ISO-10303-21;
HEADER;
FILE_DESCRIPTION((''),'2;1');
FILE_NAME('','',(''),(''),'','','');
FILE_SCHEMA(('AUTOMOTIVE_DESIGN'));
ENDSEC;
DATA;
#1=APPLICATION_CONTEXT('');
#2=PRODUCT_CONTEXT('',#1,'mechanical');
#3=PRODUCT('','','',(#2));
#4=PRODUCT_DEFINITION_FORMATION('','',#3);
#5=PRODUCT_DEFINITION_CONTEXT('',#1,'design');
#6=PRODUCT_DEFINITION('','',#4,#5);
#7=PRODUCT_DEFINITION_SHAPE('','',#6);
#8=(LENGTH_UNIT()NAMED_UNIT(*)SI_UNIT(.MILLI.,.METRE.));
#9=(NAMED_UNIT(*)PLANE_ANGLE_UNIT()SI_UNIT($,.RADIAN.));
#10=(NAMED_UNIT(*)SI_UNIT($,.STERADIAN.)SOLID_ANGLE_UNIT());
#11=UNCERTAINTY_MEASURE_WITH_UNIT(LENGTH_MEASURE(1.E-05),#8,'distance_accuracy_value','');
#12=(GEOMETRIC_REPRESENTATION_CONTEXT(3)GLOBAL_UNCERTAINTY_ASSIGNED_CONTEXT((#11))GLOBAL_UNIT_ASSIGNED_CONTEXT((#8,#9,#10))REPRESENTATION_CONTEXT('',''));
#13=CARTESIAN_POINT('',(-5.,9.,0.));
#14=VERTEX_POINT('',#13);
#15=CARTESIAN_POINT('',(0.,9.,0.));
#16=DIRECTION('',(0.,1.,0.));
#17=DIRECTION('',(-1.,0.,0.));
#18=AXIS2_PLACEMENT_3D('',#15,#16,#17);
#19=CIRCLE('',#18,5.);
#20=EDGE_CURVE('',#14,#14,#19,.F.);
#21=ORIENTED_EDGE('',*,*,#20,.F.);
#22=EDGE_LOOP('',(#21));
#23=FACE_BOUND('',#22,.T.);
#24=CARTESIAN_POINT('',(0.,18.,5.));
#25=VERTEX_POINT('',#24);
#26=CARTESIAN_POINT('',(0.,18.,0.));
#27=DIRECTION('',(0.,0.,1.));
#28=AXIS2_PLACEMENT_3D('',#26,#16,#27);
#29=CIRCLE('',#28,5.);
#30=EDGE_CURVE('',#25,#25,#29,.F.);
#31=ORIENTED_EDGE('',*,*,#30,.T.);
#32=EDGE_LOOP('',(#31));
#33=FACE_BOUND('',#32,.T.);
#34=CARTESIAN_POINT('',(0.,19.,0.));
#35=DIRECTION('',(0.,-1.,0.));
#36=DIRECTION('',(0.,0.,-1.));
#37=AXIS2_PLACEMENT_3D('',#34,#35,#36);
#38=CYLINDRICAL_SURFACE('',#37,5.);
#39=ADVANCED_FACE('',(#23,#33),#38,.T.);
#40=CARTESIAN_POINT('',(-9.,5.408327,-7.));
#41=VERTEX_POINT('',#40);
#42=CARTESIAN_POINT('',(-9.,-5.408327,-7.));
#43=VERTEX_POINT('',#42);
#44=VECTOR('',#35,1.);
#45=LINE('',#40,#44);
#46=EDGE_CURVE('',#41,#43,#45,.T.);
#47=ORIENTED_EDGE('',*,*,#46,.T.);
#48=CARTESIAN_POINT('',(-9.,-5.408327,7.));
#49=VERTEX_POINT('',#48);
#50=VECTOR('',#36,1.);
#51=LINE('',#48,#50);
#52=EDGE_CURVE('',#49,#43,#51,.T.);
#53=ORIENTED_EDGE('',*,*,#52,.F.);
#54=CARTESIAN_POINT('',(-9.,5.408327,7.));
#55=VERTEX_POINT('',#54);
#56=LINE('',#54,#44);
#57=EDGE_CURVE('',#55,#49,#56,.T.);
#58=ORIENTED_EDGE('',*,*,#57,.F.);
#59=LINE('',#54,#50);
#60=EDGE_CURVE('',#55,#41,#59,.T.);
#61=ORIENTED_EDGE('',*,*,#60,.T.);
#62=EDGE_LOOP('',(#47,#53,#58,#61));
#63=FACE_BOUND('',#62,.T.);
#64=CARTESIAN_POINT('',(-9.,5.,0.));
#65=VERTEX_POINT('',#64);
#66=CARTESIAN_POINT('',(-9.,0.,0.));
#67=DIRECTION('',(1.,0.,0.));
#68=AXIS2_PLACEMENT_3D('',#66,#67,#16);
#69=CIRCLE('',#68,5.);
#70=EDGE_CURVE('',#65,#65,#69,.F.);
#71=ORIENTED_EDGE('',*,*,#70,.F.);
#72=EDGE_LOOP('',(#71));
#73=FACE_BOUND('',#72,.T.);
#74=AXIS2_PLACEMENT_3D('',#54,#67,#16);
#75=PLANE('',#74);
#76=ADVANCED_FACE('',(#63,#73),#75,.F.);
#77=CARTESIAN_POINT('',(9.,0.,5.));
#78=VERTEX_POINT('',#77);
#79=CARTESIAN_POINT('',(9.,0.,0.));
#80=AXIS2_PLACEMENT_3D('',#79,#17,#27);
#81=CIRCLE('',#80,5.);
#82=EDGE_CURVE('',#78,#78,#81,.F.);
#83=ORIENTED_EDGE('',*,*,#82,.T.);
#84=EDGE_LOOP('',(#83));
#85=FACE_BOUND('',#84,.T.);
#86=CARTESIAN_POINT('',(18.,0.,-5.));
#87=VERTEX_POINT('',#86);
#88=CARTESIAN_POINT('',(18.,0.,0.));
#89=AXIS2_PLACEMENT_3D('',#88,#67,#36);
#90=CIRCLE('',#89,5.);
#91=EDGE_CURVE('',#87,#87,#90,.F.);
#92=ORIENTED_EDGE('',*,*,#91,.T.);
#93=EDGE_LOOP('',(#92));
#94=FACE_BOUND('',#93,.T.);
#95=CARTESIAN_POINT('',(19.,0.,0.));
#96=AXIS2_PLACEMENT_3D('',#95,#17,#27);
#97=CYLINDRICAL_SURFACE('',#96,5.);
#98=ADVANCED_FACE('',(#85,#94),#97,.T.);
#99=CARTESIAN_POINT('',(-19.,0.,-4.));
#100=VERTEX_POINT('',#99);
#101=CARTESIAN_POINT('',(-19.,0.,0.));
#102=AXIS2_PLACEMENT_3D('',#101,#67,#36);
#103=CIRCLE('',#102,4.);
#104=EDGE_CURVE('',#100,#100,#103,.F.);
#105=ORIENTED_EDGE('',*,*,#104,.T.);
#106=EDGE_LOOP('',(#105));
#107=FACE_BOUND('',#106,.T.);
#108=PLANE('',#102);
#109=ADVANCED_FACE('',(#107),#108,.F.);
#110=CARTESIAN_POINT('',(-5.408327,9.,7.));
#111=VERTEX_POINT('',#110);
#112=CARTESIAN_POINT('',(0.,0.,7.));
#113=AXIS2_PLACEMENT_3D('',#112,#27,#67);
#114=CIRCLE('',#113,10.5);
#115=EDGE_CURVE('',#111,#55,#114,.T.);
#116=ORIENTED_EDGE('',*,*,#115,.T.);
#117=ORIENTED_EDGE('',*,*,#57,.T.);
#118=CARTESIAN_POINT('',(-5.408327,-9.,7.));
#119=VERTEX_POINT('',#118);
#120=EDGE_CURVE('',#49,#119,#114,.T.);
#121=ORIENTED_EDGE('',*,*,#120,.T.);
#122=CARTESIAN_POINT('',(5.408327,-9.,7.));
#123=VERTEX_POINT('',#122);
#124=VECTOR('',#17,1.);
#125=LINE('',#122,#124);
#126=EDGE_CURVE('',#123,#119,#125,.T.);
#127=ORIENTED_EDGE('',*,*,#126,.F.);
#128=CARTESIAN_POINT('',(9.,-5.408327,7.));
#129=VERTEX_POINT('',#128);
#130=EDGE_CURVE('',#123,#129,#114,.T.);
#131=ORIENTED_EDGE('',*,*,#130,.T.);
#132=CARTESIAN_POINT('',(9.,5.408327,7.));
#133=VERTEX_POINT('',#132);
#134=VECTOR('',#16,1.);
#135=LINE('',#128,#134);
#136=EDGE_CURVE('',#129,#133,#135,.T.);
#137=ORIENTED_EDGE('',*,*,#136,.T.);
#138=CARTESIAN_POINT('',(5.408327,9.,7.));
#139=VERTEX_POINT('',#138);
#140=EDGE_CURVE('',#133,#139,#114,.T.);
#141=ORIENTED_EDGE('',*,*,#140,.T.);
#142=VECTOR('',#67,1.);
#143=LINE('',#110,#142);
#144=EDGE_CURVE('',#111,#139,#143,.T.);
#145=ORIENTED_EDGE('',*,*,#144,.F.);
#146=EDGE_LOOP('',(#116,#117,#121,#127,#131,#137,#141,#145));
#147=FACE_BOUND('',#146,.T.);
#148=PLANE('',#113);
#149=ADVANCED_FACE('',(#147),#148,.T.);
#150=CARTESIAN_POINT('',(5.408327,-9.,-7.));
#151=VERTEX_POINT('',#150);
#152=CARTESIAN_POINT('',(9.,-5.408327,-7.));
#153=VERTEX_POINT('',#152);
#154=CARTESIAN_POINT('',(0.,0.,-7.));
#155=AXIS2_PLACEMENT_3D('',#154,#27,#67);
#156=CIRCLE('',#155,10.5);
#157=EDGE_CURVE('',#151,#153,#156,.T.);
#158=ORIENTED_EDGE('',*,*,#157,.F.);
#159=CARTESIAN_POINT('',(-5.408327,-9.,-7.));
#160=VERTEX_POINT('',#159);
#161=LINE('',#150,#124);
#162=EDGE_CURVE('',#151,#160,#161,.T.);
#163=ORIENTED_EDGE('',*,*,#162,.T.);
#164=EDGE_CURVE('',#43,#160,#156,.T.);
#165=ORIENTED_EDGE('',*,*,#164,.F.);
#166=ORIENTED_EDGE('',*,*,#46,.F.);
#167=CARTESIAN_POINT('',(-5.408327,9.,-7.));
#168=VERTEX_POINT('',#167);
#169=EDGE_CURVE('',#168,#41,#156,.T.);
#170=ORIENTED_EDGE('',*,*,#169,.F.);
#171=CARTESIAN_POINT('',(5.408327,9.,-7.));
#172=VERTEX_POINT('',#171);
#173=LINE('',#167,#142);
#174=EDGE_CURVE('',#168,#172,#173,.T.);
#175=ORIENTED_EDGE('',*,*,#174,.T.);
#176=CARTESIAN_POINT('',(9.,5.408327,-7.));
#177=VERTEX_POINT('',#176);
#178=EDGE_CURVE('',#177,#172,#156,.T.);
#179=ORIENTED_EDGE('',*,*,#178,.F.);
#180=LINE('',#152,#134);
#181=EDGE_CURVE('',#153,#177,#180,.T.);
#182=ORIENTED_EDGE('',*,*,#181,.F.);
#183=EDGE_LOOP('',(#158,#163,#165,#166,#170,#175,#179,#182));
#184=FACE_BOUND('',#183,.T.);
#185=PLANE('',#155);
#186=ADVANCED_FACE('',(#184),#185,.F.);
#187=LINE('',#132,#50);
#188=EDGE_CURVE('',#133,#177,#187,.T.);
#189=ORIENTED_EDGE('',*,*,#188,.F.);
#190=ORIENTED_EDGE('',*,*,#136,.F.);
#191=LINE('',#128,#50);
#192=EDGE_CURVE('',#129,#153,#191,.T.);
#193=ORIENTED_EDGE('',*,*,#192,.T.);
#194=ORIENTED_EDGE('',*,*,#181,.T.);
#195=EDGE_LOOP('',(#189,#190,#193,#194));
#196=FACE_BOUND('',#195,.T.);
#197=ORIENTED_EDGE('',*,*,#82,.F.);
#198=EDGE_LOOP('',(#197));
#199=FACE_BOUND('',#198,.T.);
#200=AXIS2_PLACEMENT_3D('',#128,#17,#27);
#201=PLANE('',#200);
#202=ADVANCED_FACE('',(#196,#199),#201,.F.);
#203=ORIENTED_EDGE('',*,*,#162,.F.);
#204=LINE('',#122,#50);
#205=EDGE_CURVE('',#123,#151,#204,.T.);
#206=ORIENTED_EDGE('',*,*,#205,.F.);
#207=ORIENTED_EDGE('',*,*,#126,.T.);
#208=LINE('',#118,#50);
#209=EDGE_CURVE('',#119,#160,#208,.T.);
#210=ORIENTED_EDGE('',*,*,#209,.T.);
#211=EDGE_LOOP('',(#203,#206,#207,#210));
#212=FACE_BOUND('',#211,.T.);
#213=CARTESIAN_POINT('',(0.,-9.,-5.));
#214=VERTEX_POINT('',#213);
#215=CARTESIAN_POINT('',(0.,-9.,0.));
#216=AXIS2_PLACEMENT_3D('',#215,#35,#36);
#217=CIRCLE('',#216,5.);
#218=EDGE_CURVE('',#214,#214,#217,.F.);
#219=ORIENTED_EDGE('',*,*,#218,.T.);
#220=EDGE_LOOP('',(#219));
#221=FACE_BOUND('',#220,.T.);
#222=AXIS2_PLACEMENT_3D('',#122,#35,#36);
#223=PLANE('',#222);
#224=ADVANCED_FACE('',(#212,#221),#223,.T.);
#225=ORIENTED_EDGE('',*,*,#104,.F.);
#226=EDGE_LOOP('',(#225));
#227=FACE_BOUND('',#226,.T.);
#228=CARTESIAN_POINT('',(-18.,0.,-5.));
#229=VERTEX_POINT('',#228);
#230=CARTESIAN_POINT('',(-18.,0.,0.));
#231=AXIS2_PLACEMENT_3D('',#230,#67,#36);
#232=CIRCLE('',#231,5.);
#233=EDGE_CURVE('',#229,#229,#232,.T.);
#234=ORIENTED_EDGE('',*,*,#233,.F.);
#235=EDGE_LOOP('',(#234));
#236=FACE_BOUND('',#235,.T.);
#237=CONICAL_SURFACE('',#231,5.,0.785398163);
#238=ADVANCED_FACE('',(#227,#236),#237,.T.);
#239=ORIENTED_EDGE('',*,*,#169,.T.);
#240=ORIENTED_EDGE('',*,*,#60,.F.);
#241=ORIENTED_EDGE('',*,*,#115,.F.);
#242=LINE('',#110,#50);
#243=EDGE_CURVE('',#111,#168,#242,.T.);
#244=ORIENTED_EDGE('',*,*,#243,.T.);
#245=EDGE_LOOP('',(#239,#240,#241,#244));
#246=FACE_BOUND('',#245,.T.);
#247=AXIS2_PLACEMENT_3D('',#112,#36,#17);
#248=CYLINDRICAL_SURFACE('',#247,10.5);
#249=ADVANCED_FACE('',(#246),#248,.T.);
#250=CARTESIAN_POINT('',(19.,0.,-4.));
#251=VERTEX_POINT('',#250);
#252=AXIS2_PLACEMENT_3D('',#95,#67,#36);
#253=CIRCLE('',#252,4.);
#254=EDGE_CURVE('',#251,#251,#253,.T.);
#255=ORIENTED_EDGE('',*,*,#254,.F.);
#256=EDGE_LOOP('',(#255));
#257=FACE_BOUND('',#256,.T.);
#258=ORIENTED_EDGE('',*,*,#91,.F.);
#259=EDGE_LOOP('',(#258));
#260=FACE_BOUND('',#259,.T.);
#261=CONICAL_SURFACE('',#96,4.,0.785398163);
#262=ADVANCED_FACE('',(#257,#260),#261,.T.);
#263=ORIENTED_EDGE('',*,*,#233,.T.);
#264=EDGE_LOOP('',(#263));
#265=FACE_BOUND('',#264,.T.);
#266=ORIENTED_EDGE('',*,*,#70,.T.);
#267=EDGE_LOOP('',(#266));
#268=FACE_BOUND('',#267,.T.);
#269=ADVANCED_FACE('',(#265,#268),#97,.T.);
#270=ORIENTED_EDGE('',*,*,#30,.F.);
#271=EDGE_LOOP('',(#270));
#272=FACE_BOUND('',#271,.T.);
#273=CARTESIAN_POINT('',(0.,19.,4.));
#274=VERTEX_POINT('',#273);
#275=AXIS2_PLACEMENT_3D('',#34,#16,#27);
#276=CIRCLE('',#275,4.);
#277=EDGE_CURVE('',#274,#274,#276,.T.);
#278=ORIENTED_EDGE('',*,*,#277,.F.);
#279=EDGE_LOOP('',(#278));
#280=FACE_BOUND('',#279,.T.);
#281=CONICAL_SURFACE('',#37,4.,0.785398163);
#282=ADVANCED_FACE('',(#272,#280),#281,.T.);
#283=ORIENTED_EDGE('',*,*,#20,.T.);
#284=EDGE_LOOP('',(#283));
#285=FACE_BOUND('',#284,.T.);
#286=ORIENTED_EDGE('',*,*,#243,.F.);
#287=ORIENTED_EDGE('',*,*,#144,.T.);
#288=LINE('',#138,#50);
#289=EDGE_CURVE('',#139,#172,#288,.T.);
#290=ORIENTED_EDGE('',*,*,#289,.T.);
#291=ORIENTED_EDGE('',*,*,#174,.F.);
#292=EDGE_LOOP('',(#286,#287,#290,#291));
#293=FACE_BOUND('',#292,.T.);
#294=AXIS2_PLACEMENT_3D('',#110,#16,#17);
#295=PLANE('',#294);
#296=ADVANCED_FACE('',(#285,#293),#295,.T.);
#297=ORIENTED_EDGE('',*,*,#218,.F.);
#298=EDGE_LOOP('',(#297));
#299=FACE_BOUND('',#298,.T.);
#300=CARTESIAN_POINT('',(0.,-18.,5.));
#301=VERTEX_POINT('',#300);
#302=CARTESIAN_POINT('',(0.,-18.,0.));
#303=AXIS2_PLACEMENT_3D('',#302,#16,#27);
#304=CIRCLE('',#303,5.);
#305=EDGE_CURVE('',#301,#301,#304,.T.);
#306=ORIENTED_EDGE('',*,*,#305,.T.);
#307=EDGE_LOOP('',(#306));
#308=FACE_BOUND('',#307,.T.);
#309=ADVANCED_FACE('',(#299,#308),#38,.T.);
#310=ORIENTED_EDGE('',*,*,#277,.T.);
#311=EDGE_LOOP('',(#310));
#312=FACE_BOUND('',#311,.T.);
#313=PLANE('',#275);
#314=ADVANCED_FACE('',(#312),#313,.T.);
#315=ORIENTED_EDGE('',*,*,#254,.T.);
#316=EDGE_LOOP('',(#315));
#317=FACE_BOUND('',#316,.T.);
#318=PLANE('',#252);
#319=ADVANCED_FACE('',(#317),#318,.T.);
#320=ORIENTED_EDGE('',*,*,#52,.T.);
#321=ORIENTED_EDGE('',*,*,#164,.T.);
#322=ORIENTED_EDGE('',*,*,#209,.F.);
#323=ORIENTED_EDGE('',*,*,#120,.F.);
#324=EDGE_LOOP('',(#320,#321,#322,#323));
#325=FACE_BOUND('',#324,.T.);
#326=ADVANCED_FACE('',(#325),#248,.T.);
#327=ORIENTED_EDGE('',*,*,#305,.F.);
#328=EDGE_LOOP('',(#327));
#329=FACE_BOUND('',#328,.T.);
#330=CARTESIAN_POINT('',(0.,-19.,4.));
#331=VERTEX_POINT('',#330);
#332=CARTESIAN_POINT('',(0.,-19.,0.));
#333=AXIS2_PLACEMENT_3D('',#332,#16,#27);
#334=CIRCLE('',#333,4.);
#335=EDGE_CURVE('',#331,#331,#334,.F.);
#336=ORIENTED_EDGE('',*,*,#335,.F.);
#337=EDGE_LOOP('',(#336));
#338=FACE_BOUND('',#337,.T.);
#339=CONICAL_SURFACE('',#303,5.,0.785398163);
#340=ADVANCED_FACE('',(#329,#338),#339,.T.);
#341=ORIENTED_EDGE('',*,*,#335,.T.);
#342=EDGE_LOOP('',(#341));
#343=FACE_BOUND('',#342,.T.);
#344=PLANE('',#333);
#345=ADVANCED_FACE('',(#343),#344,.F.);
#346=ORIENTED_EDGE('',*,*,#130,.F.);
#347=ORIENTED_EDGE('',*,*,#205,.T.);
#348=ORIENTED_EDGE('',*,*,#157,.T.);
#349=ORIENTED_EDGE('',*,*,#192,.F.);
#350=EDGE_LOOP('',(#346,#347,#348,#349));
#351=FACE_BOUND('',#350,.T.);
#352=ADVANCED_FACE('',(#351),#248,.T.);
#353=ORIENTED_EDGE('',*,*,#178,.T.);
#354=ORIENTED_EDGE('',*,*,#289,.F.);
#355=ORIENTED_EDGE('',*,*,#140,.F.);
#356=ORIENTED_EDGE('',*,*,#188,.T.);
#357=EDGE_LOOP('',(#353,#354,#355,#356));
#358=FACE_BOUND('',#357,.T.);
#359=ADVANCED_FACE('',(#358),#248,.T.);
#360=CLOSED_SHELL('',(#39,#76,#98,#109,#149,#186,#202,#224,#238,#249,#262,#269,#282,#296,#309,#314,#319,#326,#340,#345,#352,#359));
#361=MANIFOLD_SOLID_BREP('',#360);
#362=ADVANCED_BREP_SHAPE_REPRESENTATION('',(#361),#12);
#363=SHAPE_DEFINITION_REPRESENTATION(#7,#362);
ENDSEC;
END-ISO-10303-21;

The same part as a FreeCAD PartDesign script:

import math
import FreeCAD as App
import Part
import Sketcher


def edges_at(feature, points):
    """Names of the edges that pass closest to the given points."""
    edges = feature.Shape.Edges
    near = lambda p: min(range(len(edges)), key=lambda i: edges[i].distToShape(Part.Vertex(*p))[0])
    return sorted({f"Edge{near(p) + 1}" for p in points})

doc = App.newDocument("Part")
body = doc.addObject("PartDesign::Body", "Body")

# Sketch on XY plane
sketch1 = body.newObject("Sketcher::SketchObject", "Sketch")
sketch1.AttachmentSupport = (doc.getObject("XY_Plane"), [""])
sketch1.MapMode = "FlatFace"
sketch1.addGeometry([
    Part.LineSegment(App.Vector(5.408327, 9, 0), App.Vector(-5.408327, 9, 0)),  # 0
    Part.ArcOfCircle(Part.Circle(App.Vector(0, 0, 0), App.Vector(0, 0, 1), 10.5), math.radians(121.002719), math.radians(148.997281)),  # 1
    Part.LineSegment(App.Vector(-9, 5.408327, 0), App.Vector(-9, -5.408327, 0)),  # 2
    Part.ArcOfCircle(Part.Circle(App.Vector(0, 0, 0), App.Vector(0, 0, 1), 10.5), math.radians(-148.997281), math.radians(-121.002719)),  # 3
    Part.LineSegment(App.Vector(-5.408327, -9, 0), App.Vector(5.408327, -9, 0)),  # 4
    Part.ArcOfCircle(Part.Circle(App.Vector(0, 0, 0), App.Vector(0, 0, 1), 10.5), math.radians(-58.997281), math.radians(-31.002719)),  # 5
    Part.LineSegment(App.Vector(9, -5.408327, 0), App.Vector(9, 5.408327, 0)),  # 6
    Part.ArcOfCircle(Part.Circle(App.Vector(0, 0, 0), App.Vector(0, 0, 1), 10.5), math.radians(31.002719), math.radians(58.997281)),  # 7
], False)
sketch1.addConstraint([
    Sketcher.Constraint("Coincident", 0, 2, 1, 1),
    Sketcher.Constraint("Coincident", 1, 2, 2, 1),
    Sketcher.Constraint("Coincident", 2, 2, 3, 1),
    Sketcher.Constraint("Coincident", 3, 2, 4, 1),
    Sketcher.Constraint("Coincident", 4, 2, 5, 1),
    Sketcher.Constraint("Coincident", 5, 2, 6, 1),
    Sketcher.Constraint("Coincident", 6, 2, 7, 1),
    Sketcher.Constraint("Coincident", 7, 2, 0, 1),
    Sketcher.Constraint("Horizontal", 0),
    Sketcher.Constraint("Vertical", 2),
    Sketcher.Constraint("Horizontal", 4),
    Sketcher.Constraint("Vertical", 6),
    Sketcher.Constraint("Coincident", 1, 3, -1, 1),
    Sketcher.Constraint("Coincident", 3, 3, -1, 1),
    Sketcher.Constraint("Coincident", 5, 3, -1, 1),
    Sketcher.Constraint("Coincident", 7, 3, -1, 1),
    Sketcher.Constraint("Equal", 1, 3),
    Sketcher.Constraint("Equal", 3, 5),
    Sketcher.Constraint("Equal", 5, 7),
    Sketcher.Constraint("Horizontal", 2, 2, 5, 2),
    Sketcher.Constraint("Vertical", 0, 2, 3, 2),
    Sketcher.Constraint("Equal", 4, 2),
    Sketcher.Constraint("Radius", 1, 10.5),
    Sketcher.Constraint("DistanceY", -1, 1, 0, 2, 9.0),
])
pad1 = body.newObject("PartDesign::Pad", "Pad")
pad1.Profile = sketch1
pad1.Type = "TwoLengths"
pad1.Length = 7
pad1.Length2 = 7

# Sketch on XZ plane
sketch2 = body.newObject("Sketcher::SketchObject", "Sketch001")
sketch2.AttachmentSupport = (doc.getObject("XZ_Plane"), [""])
sketch2.MapMode = "FlatFace"
sketch2.addGeometry(Part.Circle(App.Vector(0, 0, 0), App.Vector(0, 0, 1), 5), False)
sketch2.addConstraint([
    Sketcher.Constraint("Coincident", 0, 3, -1, 1),
    Sketcher.Constraint("Diameter", 0, 10.0),
])
pad2 = body.newObject("PartDesign::Pad", "Pad001")
pad2.Profile = sketch2
pad2.Type = "TwoLengths"
pad2.Length = 19
pad2.Length2 = 19
pad2.Reversed = True

# Sketch on YZ plane
sketch3 = body.newObject("Sketcher::SketchObject", "Sketch002")
sketch3.AttachmentSupport = (doc.getObject("YZ_Plane"), [""])
sketch3.MapMode = "FlatFace"
sketch3.addGeometry(Part.Circle(App.Vector(0, 0, 0), App.Vector(0, 0, 1), 5), False)
sketch3.addConstraint([
    Sketcher.Constraint("Coincident", 0, 3, -1, 1),
    Sketcher.Constraint("Diameter", 0, 10.0),
])
pad3 = body.newObject("PartDesign::Pad", "Pad002")
pad3.Profile = sketch3
pad3.Type = "TwoLengths"
pad3.Length = 19
pad3.Length2 = 19
doc.recompute()

chamfer = body.newObject("PartDesign::Chamfer", "Chamfer")
chamfer.Base = (pad3, edges_at(pad3, [
    (0, 19, 5),
    (-19, 0, -5),
    (19, 0, -5),
    (0, -19, 5),
]))
chamfer.Size = 1

doc.recompute()
